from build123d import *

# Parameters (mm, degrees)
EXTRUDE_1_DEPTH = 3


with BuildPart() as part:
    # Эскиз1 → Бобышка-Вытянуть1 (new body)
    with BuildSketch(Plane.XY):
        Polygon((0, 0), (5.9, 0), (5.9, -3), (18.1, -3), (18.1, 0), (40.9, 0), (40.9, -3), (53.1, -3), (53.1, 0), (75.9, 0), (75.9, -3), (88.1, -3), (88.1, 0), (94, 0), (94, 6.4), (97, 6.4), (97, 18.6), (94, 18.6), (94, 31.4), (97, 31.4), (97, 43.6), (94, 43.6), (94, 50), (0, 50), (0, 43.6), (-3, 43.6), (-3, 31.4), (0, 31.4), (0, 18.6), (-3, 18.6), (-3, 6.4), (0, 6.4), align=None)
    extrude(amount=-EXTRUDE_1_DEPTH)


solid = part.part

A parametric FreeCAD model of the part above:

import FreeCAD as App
import Part
import Sketcher

V = App.Vector


def add_polygon(sketch, points):
    """Adds a closed chain of lines whose ends are joined by coincident constraints."""
    first, n = sketch.GeometryCount, len(points)
    for a, b in zip(points, points[1:] + points[:1]):
        sketch.addGeometry(Part.LineSegment(App.Vector(*a, 0), App.Vector(*b, 0)), False)
    for i in range(n):
        sketch.addConstraint(Sketcher.Constraint("Coincident", first + i, 2, first + (i + 1) % n, 1))

doc = App.newDocument("Part")
body = doc.addObject("PartDesign::Body", "Body")

# Sketch on XY plane
sketch1 = body.newObject("Sketcher::SketchObject", "Sketch")
sketch1.AttachmentSupport = (doc.getObject("XY_Plane"), [""])
sketch1.MapMode = "FlatFace"
add_polygon(sketch1, [(0, 0), (5.9, 0), (5.9, -3), (18.1, -3), (18.1, 0), (40.9, 0), (40.9, -3), (53.1, -3), (53.1, 0), (75.9, 0), (75.9, -3), (88.1, -3), (88.1, 0), (94, 0), (94, 6.4), (97, 6.4), (97, 18.6), (94, 18.6), (94, 31.4), (97, 31.4), (97, 43.6), (94, 43.6), (94, 50), (0, 50), (0, 43.6), (-3, 43.6), (-3, 31.4), (0, 31.4), (0, 18.6), (-3, 18.6), (-3, 6.4), (0, 6.4)])  # lines 0-31
sketch1.addConstraint([
    Sketcher.Constraint("Horizontal", 0),
    Sketcher.Constraint("Vertical", 1),
    Sketcher.Constraint("Horizontal", 2),
    Sketcher.Constraint("Vertical", 3),
    Sketcher.Constraint("Horizontal", 4),
    Sketcher.Constraint("Vertical", 5),
    Sketcher.Constraint("Horizontal", 6),
    Sketcher.Constraint("Vertical", 7),
    Sketcher.Constraint("Horizontal", 8),
    Sketcher.Constraint("Vertical", 9),
    Sketcher.Constraint("Horizontal", 10),
    Sketcher.Constraint("Vertical", 11),
    Sketcher.Constraint("Horizontal", 12),
    Sketcher.Constraint("Vertical", 13),
    Sketcher.Constraint("Horizontal", 14),
    Sketcher.Constraint("Vertical", 15),
    Sketcher.Constraint("Horizontal", 16),
    Sketcher.Constraint("Vertical", 17),
    Sketcher.Constraint("Horizontal", 18),
    Sketcher.Constraint("Vertical", 19),
    Sketcher.Constraint("Horizontal", 20),
    Sketcher.Constraint("Vertical", 21),
    Sketcher.Constraint("Horizontal", 22),
    Sketcher.Constraint("Vertical", 23),
    Sketcher.Constraint("Horizontal", 24),
    Sketcher.Constraint("Vertical", 25),
    Sketcher.Constraint("Horizontal", 26),
    Sketcher.Constraint("Vertical", 27),
    Sketcher.Constraint("Horizontal", 28),
    Sketcher.Constraint("Vertical", 29),
    Sketcher.Constraint("Horizontal", 30),
    Sketcher.Constraint("Vertical", 31),
    Sketcher.Constraint("Coincident", 31, 2, -1, 1),
    Sketcher.Constraint("PointOnObject", 3, 2, -1),
    Sketcher.Constraint("PointOnObject", 7, 2, -1),
    Sketcher.Constraint("PointOnObject", 11, 2, -1),
    Sketcher.Constraint("PointOnObject", 22, 2, -2),
    Sketcher.Constraint("PointOnObject", 26, 2, -2),
    Sketcher.Constraint("Horizontal", 2, 2, 5, 2),
    Sketcher.Constraint("Horizontal", 6, 2, 9, 2),
    Sketcher.Constraint("Horizontal", 20, 2, 23, 2),
    Sketcher.Constraint("Horizontal", 18, 2, 25, 2),
    Sketcher.Constraint("Horizontal", 16, 2, 27, 2),
    Sketcher.Constraint("Horizontal", 14, 2, 29, 2),
    Sketcher.Constraint("Vertical", 13, 2, 16, 2),
    Sketcher.Constraint("Vertical", 15, 2, 18, 2),
    Sketcher.Constraint("Vertical", 17, 2, 20, 2),
    Sketcher.Constraint("Vertical", 25, 2, 28, 2),
    Sketcher.Constraint("Equal", 2, 6),
    Sketcher.Constraint("Equal", 4, 8),
    Sketcher.Constraint("Equal", 6, 10),
    Sketcher.Constraint("Equal", 0, 12),
    Sketcher.Constraint("Equal", 20, 24),
    Sketcher.Constraint("Equal", 30, 1),
    Sketcher.Constraint("Equal", 10, 15),
    Sketcher.Constraint("Equal", 15, 19),
    Sketcher.Constraint("Equal", 13, 21),
    Sketcher.Constraint("DistanceX", 14, 1, 14, 2, 3.0),
    Sketcher.Constraint("DistanceX", 22, 2, 22, 1, 94.0),
    Sketcher.Constraint("DistanceX", 0, 1, 0, 2, 5.9),
    Sketcher.Constraint("DistanceX", 2, 1, 2, 2, 12.2),
    Sketcher.Constraint("DistanceY", 13, 1, 13, 2, 6.4),
    Sketcher.Constraint("DistanceY", 17, 1, 17, 2, 12.8),
])
pad1 = body.newObject("PartDesign::Pad", "Pad")
pad1.Profile = sketch1
pad1.Length = 3
pad1.Reversed = True

doc.recompute()
